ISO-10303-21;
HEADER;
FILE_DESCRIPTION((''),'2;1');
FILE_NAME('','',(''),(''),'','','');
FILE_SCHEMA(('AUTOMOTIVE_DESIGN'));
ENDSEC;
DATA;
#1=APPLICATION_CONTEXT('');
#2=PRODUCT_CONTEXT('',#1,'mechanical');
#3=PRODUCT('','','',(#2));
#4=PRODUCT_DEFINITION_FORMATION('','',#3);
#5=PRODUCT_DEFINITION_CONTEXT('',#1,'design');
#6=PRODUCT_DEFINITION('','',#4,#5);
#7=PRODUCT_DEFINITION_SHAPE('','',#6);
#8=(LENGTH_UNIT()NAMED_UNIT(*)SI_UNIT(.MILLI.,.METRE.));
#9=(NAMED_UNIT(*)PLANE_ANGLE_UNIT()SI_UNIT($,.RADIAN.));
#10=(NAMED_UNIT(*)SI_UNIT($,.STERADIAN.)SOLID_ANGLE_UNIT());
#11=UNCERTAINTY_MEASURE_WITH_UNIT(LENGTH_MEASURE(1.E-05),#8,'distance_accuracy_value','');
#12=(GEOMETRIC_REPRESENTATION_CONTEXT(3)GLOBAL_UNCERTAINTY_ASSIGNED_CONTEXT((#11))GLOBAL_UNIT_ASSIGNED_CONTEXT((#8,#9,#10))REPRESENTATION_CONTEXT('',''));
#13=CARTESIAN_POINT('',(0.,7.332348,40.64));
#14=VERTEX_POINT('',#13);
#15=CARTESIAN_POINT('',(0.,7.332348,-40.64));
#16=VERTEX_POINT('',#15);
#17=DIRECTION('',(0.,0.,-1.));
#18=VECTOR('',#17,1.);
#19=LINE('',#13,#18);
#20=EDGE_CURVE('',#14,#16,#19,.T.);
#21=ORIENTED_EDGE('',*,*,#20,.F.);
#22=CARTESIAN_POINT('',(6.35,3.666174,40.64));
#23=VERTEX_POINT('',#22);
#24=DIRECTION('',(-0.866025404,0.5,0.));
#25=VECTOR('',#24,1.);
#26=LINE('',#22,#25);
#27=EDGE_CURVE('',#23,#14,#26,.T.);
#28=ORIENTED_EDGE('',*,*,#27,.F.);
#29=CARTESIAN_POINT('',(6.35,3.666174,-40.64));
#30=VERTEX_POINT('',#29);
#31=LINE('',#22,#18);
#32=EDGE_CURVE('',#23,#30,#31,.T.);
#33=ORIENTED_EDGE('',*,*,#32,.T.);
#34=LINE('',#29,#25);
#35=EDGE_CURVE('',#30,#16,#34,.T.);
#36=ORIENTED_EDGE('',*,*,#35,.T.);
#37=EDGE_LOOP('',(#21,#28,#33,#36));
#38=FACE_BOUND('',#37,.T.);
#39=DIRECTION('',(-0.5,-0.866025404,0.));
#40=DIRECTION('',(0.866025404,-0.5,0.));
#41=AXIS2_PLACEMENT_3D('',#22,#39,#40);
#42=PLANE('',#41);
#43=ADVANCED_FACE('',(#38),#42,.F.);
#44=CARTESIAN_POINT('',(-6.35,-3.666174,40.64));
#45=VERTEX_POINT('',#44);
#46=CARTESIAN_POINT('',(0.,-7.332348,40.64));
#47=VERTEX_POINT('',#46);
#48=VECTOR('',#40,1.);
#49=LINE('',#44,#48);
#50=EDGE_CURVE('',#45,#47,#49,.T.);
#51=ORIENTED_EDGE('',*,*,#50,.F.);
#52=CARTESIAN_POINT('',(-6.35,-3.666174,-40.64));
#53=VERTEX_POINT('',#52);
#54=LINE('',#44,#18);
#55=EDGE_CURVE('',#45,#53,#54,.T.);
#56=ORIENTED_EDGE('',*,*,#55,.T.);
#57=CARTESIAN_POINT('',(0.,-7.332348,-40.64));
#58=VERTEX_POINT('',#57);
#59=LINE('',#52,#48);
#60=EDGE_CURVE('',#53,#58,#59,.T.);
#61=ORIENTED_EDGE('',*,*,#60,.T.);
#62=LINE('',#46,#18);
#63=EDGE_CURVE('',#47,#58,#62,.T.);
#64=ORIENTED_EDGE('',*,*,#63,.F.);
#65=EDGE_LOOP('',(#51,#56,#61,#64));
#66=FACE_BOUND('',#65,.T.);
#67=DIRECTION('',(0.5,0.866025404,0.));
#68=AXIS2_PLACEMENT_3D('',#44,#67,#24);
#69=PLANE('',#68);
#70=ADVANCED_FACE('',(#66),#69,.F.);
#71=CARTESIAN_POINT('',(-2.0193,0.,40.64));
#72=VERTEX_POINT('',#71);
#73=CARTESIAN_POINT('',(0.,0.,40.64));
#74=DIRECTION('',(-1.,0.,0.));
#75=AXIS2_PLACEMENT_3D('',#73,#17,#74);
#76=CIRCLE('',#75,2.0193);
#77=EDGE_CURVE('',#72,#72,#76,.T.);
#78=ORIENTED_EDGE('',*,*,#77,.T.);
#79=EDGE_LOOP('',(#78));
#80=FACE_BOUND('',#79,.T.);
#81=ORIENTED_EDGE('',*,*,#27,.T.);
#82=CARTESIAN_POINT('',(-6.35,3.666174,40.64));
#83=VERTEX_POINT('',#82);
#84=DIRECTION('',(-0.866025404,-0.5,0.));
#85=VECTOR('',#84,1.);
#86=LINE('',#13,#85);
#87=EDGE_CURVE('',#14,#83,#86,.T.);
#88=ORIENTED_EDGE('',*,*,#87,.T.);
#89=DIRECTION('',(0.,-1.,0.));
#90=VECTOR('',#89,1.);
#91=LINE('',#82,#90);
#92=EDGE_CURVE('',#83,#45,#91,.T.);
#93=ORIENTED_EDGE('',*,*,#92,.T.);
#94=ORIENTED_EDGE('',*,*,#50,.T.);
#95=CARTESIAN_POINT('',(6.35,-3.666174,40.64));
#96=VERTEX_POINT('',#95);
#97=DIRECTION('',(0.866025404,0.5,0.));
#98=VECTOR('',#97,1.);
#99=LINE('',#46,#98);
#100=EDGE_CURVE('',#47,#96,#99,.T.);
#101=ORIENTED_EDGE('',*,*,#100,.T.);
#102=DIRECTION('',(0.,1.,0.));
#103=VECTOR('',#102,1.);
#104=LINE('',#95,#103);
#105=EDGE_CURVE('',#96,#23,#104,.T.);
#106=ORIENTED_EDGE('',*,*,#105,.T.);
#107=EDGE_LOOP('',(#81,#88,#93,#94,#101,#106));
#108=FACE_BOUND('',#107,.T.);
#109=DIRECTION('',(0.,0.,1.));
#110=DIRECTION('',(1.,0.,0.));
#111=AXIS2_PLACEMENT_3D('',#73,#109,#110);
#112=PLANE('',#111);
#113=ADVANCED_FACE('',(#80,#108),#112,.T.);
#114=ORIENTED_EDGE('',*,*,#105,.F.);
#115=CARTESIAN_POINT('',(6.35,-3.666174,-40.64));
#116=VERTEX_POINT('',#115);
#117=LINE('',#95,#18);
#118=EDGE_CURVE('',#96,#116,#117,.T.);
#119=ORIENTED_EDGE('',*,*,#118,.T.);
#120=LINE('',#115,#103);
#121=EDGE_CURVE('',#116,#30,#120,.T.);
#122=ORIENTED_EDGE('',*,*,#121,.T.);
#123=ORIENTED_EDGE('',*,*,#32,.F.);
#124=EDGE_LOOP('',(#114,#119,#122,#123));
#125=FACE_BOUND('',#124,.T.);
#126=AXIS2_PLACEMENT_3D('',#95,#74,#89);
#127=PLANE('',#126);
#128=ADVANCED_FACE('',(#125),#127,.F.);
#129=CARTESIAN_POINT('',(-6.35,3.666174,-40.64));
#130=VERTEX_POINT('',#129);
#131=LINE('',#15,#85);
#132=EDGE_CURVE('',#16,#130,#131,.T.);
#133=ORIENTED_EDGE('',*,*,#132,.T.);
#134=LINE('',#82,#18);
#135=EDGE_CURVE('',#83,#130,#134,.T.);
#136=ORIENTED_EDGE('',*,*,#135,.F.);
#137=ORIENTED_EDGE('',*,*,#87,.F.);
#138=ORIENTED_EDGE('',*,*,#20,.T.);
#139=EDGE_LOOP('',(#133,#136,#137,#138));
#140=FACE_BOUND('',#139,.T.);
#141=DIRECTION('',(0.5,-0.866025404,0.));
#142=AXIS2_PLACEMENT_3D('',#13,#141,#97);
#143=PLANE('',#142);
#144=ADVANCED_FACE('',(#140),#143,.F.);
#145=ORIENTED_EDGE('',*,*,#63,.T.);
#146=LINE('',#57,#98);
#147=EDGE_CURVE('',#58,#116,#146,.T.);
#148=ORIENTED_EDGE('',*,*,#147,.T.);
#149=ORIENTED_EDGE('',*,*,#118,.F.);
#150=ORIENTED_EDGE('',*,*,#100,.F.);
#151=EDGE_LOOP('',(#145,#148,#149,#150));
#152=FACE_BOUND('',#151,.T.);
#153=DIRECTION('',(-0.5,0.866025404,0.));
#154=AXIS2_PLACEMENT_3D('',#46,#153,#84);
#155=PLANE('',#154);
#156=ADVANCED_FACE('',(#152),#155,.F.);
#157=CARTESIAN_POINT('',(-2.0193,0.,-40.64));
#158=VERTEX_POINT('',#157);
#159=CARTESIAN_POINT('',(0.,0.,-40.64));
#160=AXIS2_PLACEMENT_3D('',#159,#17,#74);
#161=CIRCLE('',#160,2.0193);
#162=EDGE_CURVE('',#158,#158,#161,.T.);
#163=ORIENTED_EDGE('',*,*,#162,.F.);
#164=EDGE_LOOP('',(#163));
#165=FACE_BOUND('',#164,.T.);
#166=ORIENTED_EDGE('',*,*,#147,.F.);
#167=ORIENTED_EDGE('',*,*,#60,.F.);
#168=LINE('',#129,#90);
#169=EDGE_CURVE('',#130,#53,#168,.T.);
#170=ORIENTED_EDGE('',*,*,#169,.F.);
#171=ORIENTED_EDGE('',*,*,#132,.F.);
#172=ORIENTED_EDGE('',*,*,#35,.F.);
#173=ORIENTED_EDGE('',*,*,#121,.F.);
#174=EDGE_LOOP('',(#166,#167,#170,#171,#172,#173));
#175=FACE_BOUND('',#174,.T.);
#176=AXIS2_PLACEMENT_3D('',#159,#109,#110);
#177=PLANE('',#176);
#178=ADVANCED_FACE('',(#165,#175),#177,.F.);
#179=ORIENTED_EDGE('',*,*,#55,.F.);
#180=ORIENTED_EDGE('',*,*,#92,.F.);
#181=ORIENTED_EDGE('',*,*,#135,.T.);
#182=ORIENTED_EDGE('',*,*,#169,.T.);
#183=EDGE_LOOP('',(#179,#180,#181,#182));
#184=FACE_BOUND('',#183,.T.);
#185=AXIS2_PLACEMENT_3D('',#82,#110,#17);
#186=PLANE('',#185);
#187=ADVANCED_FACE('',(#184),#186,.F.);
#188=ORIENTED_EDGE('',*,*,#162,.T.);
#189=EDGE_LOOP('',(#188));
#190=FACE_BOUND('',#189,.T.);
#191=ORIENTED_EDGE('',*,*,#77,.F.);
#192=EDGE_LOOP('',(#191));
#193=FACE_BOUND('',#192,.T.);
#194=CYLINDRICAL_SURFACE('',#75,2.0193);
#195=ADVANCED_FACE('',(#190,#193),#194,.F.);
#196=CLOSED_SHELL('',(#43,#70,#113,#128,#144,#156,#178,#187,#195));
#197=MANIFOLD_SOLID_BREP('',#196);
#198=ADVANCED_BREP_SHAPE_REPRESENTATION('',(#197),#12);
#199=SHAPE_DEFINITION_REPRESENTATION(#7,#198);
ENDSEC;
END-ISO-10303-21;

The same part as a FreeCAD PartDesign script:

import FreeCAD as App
import Part
import Sketcher
from FreeCAD import Vector
Q = App.Units.Quantity

doc = App.newDocument("Part")
body = doc.addObject("PartDesign::Body", "Body")

# Sketch on XY plane
sketch1 = body.newObject("Sketcher::SketchObject", "Sketch")
sketch1.AttachmentSupport = (doc.getObject("XY_Plane"), [""])
sketch1.MapMode = "FlatFace"
sketch1.addGeometry([
    Part.LineSegment(Vector(0, 7, 0), Vector(-6, 4, 0)),  # 0
    Part.LineSegment(Vector(-6, 4, 0), Vector(-6, -4, 0)),  # 1
    Part.LineSegment(Vector(-6, -4, 0), Vector(0, -7, 0)),  # 2
    Part.LineSegment(Vector(0, -7, 0), Vector(6, -4, 0)),  # 3
    Part.LineSegment(Vector(6, -4, 0), Vector(6, 4, 0)),  # 4
    Part.LineSegment(Vector(6, 4, 0), Vector(0, 7, 0)),  # 5
], False)
sketch1.addConstraint([
    Sketcher.Constraint("Coincident", 0, 2, 1, 1),
    Sketcher.Constraint("Coincident", 1, 2, 2, 1),
    Sketcher.Constraint("Coincident", 2, 2, 3, 1),
    Sketcher.Constraint("Coincident", 3, 2, 4, 1),
    Sketcher.Constraint("Coincident", 4, 2, 5, 1),
    Sketcher.Constraint("Coincident", 5, 2, 0, 1),
    Sketcher.Constraint("Vertical", 1),
    Sketcher.Constraint("Vertical", 4),
    Sketcher.Constraint("Symmetric", 0, 2, 3, 2, -1, 1),
    Sketcher.Constraint("Symmetric", 2, 2, 5, 2, -1, 1),
    Sketcher.Constraint("PointOnObject", 2, 2, -2),
    Sketcher.Constraint("Parallel", 2, 5),
    Sketcher.Constraint("Horizontal", 1, 2, 3, 2),
    Sketcher.Constraint("Angle", 0, Q("-150 deg")),
    Sketcher.Constraint("DistanceX", 1, 2, 3, 2, Q("0.5 in")),
    Sketcher.Constraint("DistanceY", 1, 2, 1, 1, Q("7.332348 mm")),
])
pad1 = body.newObject("PartDesign::Pad", "Pad")
pad1.Profile = sketch1
pad1.Length = Q("3.2 in")
pad1.Midplane = True

# Sketch on XY plane
sketch2 = body.newObject("Sketcher::SketchObject", "Sketch001")
sketch2.AttachmentSupport = (doc.getObject("XY_Plane"), [""])
sketch2.MapMode = "FlatFace"
sketch2.AttachmentOffset = App.Placement(Vector(0, 0, -1.6 * 25.4), App.Rotation())
sketch2.addGeometry(Part.Circle(Vector(0, 0, 0), Vector(0, 0, 1), 2), False)
sketch2.addConstraint([
    Sketcher.Constraint("Coincident", 0, 3, -1, 1),
    Sketcher.Constraint("Diameter", 0, Q("0.159 in")),
])
pocket1 = body.newObject("PartDesign::Pocket", "Pocket")
pocket1.Profile = sketch2
pocket1.Type = "ThroughAll"
pocket1.Reversed = True

doc.recompute()
